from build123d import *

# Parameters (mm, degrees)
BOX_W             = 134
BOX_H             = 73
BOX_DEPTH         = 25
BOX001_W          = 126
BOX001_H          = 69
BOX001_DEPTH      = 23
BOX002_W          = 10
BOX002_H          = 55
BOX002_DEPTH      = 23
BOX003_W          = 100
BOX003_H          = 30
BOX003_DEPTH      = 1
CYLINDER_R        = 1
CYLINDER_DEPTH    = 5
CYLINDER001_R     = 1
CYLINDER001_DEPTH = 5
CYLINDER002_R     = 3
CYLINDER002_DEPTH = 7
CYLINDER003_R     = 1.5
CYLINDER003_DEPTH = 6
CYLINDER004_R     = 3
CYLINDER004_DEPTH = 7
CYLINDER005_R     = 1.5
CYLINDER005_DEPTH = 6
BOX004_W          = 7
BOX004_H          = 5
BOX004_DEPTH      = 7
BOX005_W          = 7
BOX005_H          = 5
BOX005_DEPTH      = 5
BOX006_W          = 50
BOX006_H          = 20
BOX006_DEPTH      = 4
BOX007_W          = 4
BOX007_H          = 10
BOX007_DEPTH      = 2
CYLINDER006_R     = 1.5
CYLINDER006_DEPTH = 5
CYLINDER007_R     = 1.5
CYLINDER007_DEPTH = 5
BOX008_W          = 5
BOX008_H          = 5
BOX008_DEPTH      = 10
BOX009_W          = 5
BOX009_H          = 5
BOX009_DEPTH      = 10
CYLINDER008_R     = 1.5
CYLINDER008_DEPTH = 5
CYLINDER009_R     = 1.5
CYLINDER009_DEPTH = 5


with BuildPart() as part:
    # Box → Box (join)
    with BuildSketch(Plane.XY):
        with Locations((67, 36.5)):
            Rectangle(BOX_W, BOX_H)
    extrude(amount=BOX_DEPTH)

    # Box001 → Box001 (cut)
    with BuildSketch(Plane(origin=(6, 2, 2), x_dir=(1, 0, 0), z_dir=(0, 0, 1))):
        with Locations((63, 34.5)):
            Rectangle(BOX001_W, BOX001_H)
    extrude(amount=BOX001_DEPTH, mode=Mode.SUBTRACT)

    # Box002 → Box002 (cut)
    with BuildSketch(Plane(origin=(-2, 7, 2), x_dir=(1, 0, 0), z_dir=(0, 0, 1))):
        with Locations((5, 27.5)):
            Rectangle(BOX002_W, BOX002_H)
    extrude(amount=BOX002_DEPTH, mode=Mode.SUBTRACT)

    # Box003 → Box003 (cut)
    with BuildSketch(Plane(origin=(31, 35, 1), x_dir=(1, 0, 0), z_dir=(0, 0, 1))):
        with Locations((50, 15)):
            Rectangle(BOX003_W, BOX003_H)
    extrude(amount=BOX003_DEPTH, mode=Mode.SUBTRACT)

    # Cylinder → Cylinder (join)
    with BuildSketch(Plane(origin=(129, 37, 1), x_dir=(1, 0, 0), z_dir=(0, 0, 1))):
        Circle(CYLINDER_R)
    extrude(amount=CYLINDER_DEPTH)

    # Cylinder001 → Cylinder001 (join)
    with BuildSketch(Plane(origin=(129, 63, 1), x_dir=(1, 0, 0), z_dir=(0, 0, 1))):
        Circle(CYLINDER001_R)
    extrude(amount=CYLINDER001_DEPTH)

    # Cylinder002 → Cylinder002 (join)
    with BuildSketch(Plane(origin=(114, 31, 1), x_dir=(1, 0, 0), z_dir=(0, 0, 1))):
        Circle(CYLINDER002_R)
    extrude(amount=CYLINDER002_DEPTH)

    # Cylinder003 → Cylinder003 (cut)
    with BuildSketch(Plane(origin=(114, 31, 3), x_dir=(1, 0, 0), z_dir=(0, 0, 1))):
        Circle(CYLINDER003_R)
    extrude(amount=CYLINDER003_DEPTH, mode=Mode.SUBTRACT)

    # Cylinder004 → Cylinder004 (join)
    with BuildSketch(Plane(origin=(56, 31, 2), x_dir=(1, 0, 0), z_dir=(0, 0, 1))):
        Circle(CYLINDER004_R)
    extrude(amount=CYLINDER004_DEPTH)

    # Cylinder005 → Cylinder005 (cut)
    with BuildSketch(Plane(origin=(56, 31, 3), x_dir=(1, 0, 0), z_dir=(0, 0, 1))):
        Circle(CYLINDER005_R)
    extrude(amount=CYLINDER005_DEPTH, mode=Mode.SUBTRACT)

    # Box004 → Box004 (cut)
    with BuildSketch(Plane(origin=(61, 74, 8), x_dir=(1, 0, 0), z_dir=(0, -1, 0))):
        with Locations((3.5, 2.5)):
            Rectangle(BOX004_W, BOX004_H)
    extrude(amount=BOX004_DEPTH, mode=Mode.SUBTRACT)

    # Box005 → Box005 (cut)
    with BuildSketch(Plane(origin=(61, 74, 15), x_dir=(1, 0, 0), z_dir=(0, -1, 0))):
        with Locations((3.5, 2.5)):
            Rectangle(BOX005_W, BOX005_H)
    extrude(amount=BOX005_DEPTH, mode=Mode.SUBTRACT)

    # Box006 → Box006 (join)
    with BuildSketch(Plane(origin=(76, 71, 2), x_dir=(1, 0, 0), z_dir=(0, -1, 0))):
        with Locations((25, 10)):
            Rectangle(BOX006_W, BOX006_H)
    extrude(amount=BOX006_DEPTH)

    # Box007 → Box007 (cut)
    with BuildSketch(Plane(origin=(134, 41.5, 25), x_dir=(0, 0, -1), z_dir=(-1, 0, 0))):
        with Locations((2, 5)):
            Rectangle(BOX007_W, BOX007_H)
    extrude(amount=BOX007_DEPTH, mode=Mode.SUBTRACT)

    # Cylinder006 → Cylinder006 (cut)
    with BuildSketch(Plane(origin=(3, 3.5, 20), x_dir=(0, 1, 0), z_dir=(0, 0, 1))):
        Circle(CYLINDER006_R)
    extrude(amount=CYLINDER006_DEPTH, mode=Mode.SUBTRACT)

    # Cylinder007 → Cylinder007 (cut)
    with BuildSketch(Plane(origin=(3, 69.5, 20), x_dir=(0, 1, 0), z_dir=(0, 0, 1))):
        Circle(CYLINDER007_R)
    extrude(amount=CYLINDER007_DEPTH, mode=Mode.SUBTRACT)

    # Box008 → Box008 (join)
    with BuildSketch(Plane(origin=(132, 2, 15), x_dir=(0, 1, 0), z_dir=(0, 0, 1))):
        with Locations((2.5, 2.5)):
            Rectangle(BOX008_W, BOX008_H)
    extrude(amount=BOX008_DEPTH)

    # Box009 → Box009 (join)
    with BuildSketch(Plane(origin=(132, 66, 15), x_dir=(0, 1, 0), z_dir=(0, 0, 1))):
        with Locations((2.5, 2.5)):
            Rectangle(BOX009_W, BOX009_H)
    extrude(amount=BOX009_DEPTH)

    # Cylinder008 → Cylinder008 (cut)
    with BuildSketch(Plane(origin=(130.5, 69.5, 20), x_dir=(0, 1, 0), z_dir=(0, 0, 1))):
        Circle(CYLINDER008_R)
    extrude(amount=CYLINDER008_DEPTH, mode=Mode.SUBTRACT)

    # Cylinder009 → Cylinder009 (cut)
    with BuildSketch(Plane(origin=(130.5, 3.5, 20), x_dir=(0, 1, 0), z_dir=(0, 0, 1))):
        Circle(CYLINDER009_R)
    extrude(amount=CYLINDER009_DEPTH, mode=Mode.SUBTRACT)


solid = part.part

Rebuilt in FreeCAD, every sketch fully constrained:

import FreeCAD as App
import Part
import Sketcher
Q = App.Units.Quantity


def add_polygon(sketch, points):
    """Adds a closed chain of lines whose ends are joined by coincident constraints."""
    first, n = sketch.GeometryCount, len(points)
    for a, b in zip(points, points[1:] + points[:1]):
        sketch.addGeometry(Part.LineSegment(App.Vector(*a, 0), App.Vector(*b, 0)), False)
    for i in range(n):
        sketch.addConstraint(Sketcher.Constraint("Coincident", first + i, 2, first + (i + 1) % n, 1))

doc = App.newDocument("Part")
body = doc.addObject("PartDesign::Body", "Body")

sketch1 = body.newObject("Sketcher::SketchObject", "Sketch")
sketch1.AttachmentSupport = (doc.getObject("XY_Plane"), [""])
sketch1.MapMode = "FlatFace"
add_polygon(sketch1, [(0, 73), (0, 0), (134, 0), (134, 73)])
sketch1.addConstraint(Sketcher.Constraint("Vertical", 0))
sketch1.addConstraint(Sketcher.Constraint("Horizontal", 1))
sketch1.addConstraint(Sketcher.Constraint("Vertical", 2))
sketch1.addConstraint(Sketcher.Constraint("Horizontal", 3))
sketch1.addConstraint(Sketcher.Constraint("Coincident", 0, 2, -1, 1))
sketch1.addConstraint(Sketcher.Constraint("DistanceX", 1, 1, 1, 2, Q("134 mm")))
sketch1.addConstraint(Sketcher.Constraint("DistanceY", 0, 2, 0, 1, Q("73 mm")))
pad1 = body.newObject("PartDesign::Pad", "Pad")
pad1.Profile = sketch1
pad1.Length = 25

sketch2 = body.newObject("Sketcher::SketchObject", "Sketch001")
sketch2.AttachmentSupport = (doc.getObject("XY_Plane"), [""])
sketch2.MapMode = "FlatFace"
sketch2.AttachmentOffset = App.Placement(App.Vector(0, 0, 2), App.Rotation())
add_polygon(sketch2, [(6, 71), (6, 2), (132, 2), (132, 71)])
sketch2.addConstraint(Sketcher.Constraint("Vertical", 0))
sketch2.addConstraint(Sketcher.Constraint("Horizontal", 1))
sketch2.addConstraint(Sketcher.Constraint("Vertical", 2))
sketch2.addConstraint(Sketcher.Constraint("Horizontal", 3))
sketch2.addConstraint(Sketcher.Constraint("DistanceX", 1, 1, 1, 2, Q("126 mm")))
sketch2.addConstraint(Sketcher.Constraint("DistanceY", 0, 2, 0, 1, Q("69 mm")))
sketch2.addConstraint(Sketcher.Constraint("DistanceX", -1, 1, 0, 2, Q("6 mm")))
sketch2.addConstraint(Sketcher.Constraint("DistanceY", -1, 1, 0, 2, Q("2 mm")))
pocket1 = body.newObject("PartDesign::Pocket", "Pocket")
pocket1.Profile = sketch2
pocket1.Length = 23
pocket1.Reversed = True

sketch3 = body.newObject("Sketcher::SketchObject", "Sketch002")
sketch3.AttachmentSupport = (doc.getObject("XY_Plane"), [""])
sketch3.MapMode = "FlatFace"
sketch3.AttachmentOffset = App.Placement(App.Vector(0, 0, 2), App.Rotation())
add_polygon(sketch3, [(-2, 62), (-2, 7), (8, 7), (8, 62)])
sketch3.addConstraint(Sketcher.Constraint("Vertical", 0))
sketch3.addConstraint(Sketcher.Constraint("Horizontal", 1))
sketch3.addConstraint(Sketcher.Constraint("Vertical", 2))
sketch3.addConstraint(Sketcher.Constraint("Horizontal", 3))
sketch3.addConstraint(Sketcher.Constraint("DistanceX", 1, 1, 1, 2, Q("10 mm")))
sketch3.addConstraint(Sketcher.Constraint("DistanceY", 0, 2, 0, 1, Q("55 mm")))
sketch3.addConstraint(Sketcher.Constraint("DistanceX", 0, 2, -1, 1, Q("2 mm")))
sketch3.addConstraint(Sketcher.Constraint("DistanceY", -1, 1, 0, 2, Q("7 mm")))
pocket2 = body.newObject("PartDesign::Pocket", "Pocket001")
pocket2.Profile = sketch3
pocket2.Length = 23
pocket2.Reversed = True

sketch4 = body.newObject("Sketcher::SketchObject", "Sketch003")
sketch4.AttachmentSupport = (doc.getObject("XY_Plane"), [""])
sketch4.MapMode = "FlatFace"
sketch4.AttachmentOffset = App.Placement(App.Vector(0, 0, 1), App.Rotation())
add_polygon(sketch4, [(31, 65), (31, 35), (131, 35), (131, 65)])
sketch4.addConstraint(Sketcher.Constraint("Vertical", 0))
sketch4.addConstraint(Sketcher.Constraint("Horizontal", 1))
sketch4.addConstraint(Sketcher.Constraint("Vertical", 2))
sketch4.addConstraint(Sketcher.Constraint("Horizontal", 3))
sketch4.addConstraint(Sketcher.Constraint("DistanceX", 1, 1, 1, 2, Q("100 mm")))
sketch4.addConstraint(Sketcher.Constraint("DistanceY", 0, 2, 0, 1, Q("30 mm")))
sketch4.addConstraint(Sketcher.Constraint("DistanceX", -1, 1, 0, 2, Q("31 mm")))
sketch4.addConstraint(Sketcher.Constraint("DistanceY", -1, 1, 0, 2, Q("35 mm")))
pocket3 = body.newObject("PartDesign::Pocket", "Pocket002")
pocket3.Profile = sketch4
pocket3.Length = 1
pocket3.Reversed = True

sketch5 = body.newObject("Sketcher::SketchObject", "Sketch004")
sketch5.AttachmentSupport = (doc.getObject("XY_Plane"), [""])
sketch5.MapMode = "FlatFace"
sketch5.AttachmentOffset = App.Placement(App.Vector(0, 0, 1), App.Rotation())
sketch5.addGeometry(Part.Circle(App.Vector(129, 37, 0), App.Vector(0, 0, 1), 1), False)
sketch5.addConstraint(Sketcher.Constraint("Diameter", 0, Q("2 mm")))
sketch5.addConstraint(Sketcher.Constraint("DistanceX", -1, 1, 0, 3, Q("129 mm")))
sketch5.addConstraint(Sketcher.Constraint("DistanceY", -1, 1, 0, 3, Q("37 mm")))
pad2 = body.newObject("PartDesign::Pad", "Pad001")
pad2.Profile = sketch5
pad2.Length = 5

sketch6 = body.newObject("Sketcher::SketchObject", "Sketch005")
sketch6.AttachmentSupport = (doc.getObject("XY_Plane"), [""])
sketch6.MapMode = "FlatFace"
sketch6.AttachmentOffset = App.Placement(App.Vector(0, 0, 1), App.Rotation())
sketch6.addGeometry(Part.Circle(App.Vector(129, 63, 0), App.Vector(0, 0, 1), 1), False)
sketch6.addConstraint(Sketcher.Constraint("Diameter", 0, Q("2 mm")))
sketch6.addConstraint(Sketcher.Constraint("DistanceX", -1, 1, 0, 3, Q("129 mm")))
sketch6.addConstraint(Sketcher.Constraint("DistanceY", -1, 1, 0, 3, Q("63 mm")))
pad3 = body.newObject("PartDesign::Pad", "Pad002")
pad3.Profile = sketch6
pad3.Length = 5

sketch7 = body.newObject("Sketcher::SketchObject", "Sketch006")
sketch7.AttachmentSupport = (doc.getObject("XY_Plane"), [""])
sketch7.MapMode = "FlatFace"
sketch7.AttachmentOffset = App.Placement(App.Vector(0, 0, 1), App.Rotation())
sketch7.addGeometry(Part.Circle(App.Vector(114, 31, 0), App.Vector(0, 0, 1), 3), False)
sketch7.addConstraint(Sketcher.Constraint("Diameter", 0, Q("6 mm")))
sketch7.addConstraint(Sketcher.Constraint("DistanceX", -1, 1, 0, 3, Q("114 mm")))
sketch7.addConstraint(Sketcher.Constraint("DistanceY", -1, 1, 0, 3, Q("31 mm")))
pad4 = body.newObject("PartDesign::Pad", "Pad003")
pad4.Profile = sketch7
pad4.Length = 7

sketch8 = body.newObject("Sketcher::SketchObject", "Sketch007")
sketch8.AttachmentSupport = (doc.getObject("XY_Plane"), [""])
sketch8.MapMode = "FlatFace"
sketch8.AttachmentOffset = App.Placement(App.Vector(0, 0, 3), App.Rotation())
sketch8.addGeometry(Part.Circle(App.Vector(114, 31, 0), App.Vector(0, 0, 1), 1.5), False)
sketch8.addConstraint(Sketcher.Constraint("Diameter", 0, Q("3 mm")))
sketch8.addConstraint(Sketcher.Constraint("DistanceX", -1, 1, 0, 3, Q("114 mm")))
sketch8.addConstraint(Sketcher.Constraint("DistanceY", -1, 1, 0, 3, Q("31 mm")))
pocket4 = body.newObject("PartDesign::Pocket", "Pocket003")
pocket4.Profile = sketch8
pocket4.Length = 6
pocket4.Reversed = True

sketch9 = body.newObject("Sketcher::SketchObject", "Sketch008")
sketch9.AttachmentSupport = (doc.getObject("XY_Plane"), [""])
sketch9.MapMode = "FlatFace"
sketch9.AttachmentOffset = App.Placement(App.Vector(0, 0, 2), App.Rotation())
sketch9.addGeometry(Part.Circle(App.Vector(56, 31, 0), App.Vector(0, 0, 1), 3), False)
sketch9.addConstraint(Sketcher.Constraint("Diameter", 0, Q("6 mm")))
sketch9.addConstraint(Sketcher.Constraint("DistanceX", -1, 1, 0, 3, Q("56 mm")))
sketch9.addConstraint(Sketcher.Constraint("DistanceY", -1, 1, 0, 3, Q("31 mm")))
pad5 = body.newObject("PartDesign::Pad", "Pad004")
pad5.Profile = sketch9
pad5.Length = 7

sketch10 = body.newObject("Sketcher::SketchObject", "Sketch009")
sketch10.AttachmentSupport = (doc.getObject("XY_Plane"), [""])
sketch10.MapMode = "FlatFace"
sketch10.AttachmentOffset = App.Placement(App.Vector(0, 0, 3), App.Rotation())
sketch10.addGeometry(Part.Circle(App.Vector(56, 31, 0), App.Vector(0, 0, 1), 1.5), False)
sketch10.addConstraint(Sketcher.Constraint("Diameter", 0, Q("3 mm")))
sketch10.addConstraint(Sketcher.Constraint("DistanceX", -1, 1, 0, 3, Q("56 mm")))
sketch10.addConstraint(Sketcher.Constraint("DistanceY", -1, 1, 0, 3, Q("31 mm")))
pocket5 = body.newObject("PartDesign::Pocket", "Pocket004")
pocket5.Profile = sketch10
pocket5.Length = 6
pocket5.Reversed = True

sketch11 = body.newObject("Sketcher::SketchObject", "Sketch010")
sketch11.AttachmentSupport = (doc.getObject("XZ_Plane"), [""])
sketch11.MapMode = "FlatFace"
sketch11.AttachmentOffset = App.Placement(App.Vector(0, 0, -74), App.Rotation())
add_polygon(sketch11, [(61, 13), (61, 8), (68, 8), (68, 13)])
sketch11.addConstraint(Sketcher.Constraint("Vertical", 0))
sketch11.addConstraint(Sketcher.Constraint("Horizontal", 1))
sketch11.addConstraint(Sketcher.Constraint("Vertical", 2))
sketch11.addConstraint(Sketcher.Constraint("Horizontal", 3))
sketch11.addConstraint(Sketcher.Constraint("DistanceX", 1, 1, 1, 2, Q("7 mm")))
sketch11.addConstraint(Sketcher.Constraint("DistanceY", 0, 2, 0, 1, Q("5 mm")))
sketch11.addConstraint(Sketcher.Constraint("DistanceX", -1, 1, 0, 2, Q("61 mm")))
sketch11.addConstraint(Sketcher.Constraint("DistanceY", -1, 1, 0, 2, Q("8 mm")))
pocket6 = body.newObject("PartDesign::Pocket", "Pocket005")
pocket6.Profile = sketch11
pocket6.Length = 7
pocket6.Reversed = True

sketch12 = body.newObject("Sketcher::SketchObject", "Sketch011")
sketch12.AttachmentSupport = (doc.getObject("XZ_Plane"), [""])
sketch12.MapMode = "FlatFace"
sketch12.AttachmentOffset = App.Placement(App.Vector(0, 0, -74), App.Rotation())
add_polygon(sketch12, [(61, 20), (61, 15), (68, 15), (68, 20)])
sketch12.addConstraint(Sketcher.Constraint("Vertical", 0))
sketch12.addConstraint(Sketcher.Constraint("Horizontal", 1))
sketch12.addConstraint(Sketcher.Constraint("Vertical", 2))
sketch12.addConstraint(Sketcher.Constraint("Horizontal", 3))
sketch12.addConstraint(Sketcher.Constraint("DistanceX", 1, 1, 1, 2, Q("7 mm")))
sketch12.addConstraint(Sketcher.Constraint("DistanceY", 0, 2, 0, 1, Q("5 mm")))
sketch12.addConstraint(Sketcher.Constraint("DistanceX", -1, 1, 0, 2, Q("61 mm")))
sketch12.addConstraint(Sketcher.Constraint("DistanceY", -1, 1, 0, 2, Q("15 mm")))
pocket7 = body.newObject("PartDesign::Pocket", "Pocket006")
pocket7.Profile = sketch12
pocket7.Length = 5
pocket7.Reversed = True

sketch13 = body.newObject("Sketcher::SketchObject", "Sketch012")
sketch13.AttachmentSupport = (doc.getObject("XZ_Plane"), [""])
sketch13.MapMode = "FlatFace"
sketch13.AttachmentOffset = App.Placement(App.Vector(0, 0, -71), App.Rotation())
add_polygon(sketch13, [(76, 22), (76, 2), (126, 2), (126, 22)])
sketch13.addConstraint(Sketcher.Constraint("Vertical", 0))
sketch13.addConstraint(Sketcher.Constraint("Horizontal", 1))
sketch13.addConstraint(Sketcher.Constraint("Vertical", 2))
sketch13.addConstraint(Sketcher.Constraint("Horizontal", 3))
sketch13.addConstraint(Sketcher.Constraint("DistanceX", 1, 1, 1, 2, Q("50 mm")))
sketch13.addConstraint(Sketcher.Constraint("DistanceY", 0, 2, 0, 1, Q("20 mm")))
sketch13.addConstraint(Sketcher.Constraint("DistanceX", -1, 1, 0, 2, Q("76 mm")))
sketch13.addConstraint(Sketcher.Constraint("DistanceY", -1, 1, 0, 2, Q("2 mm")))
pad6 = body.newObject("PartDesign::Pad", "Pad005")
pad6.Profile = sketch13
pad6.Length = 4

sketch14 = body.newObject("Sketcher::SketchObject", "Sketch013")
sketch14.AttachmentSupport = (doc.getObject("YZ_Plane"), [""])
sketch14.MapMode = "FlatFace"
sketch14.AttachmentOffset = App.Placement(App.Vector(0, 0, 134), App.Rotation())
add_polygon(sketch14, [(31.5, 25), (41.5, 25), (41.5, 21), (31.5, 21)])
sketch14.addConstraint(Sketcher.Constraint("Horizontal", 0))
sketch14.addConstraint(Sketcher.Constraint("Vertical", 1))
sketch14.addConstraint(Sketcher.Constraint("Horizontal", 2))
sketch14.addConstraint(Sketcher.Constraint("Vertical", 3))
sketch14.addConstraint(Sketcher.Constraint("DistanceX", 0, 1, 0, 2, Q("10 mm")))
sketch14.addConstraint(Sketcher.Constraint("DistanceY", 1, 2, 1, 1, Q("4 mm")))
sketch14.addConstraint(Sketcher.Constraint("DistanceY", -1, 1, 0, 2, Q("25 mm")))
sketch14.addConstraint(Sketcher.Constraint("DistanceX", -1, 1, 0, 2, Q("41.5 mm")))
pocket8 = body.newObject("PartDesign::Pocket", "Pocket007")
pocket8.Profile = sketch14
pocket8.Length = 2

sketch15 = body.newObject("Sketcher::SketchObject", "Sketch014")
sketch15.AttachmentSupport = (doc.getObject("XY_Plane"), [""])
sketch15.MapMode = "FlatFace"
sketch15.AttachmentOffset = App.Placement(App.Vector(0, 0, 20), App.Rotation())
sketch15.addGeometry(Part.Circle(App.Vector(3, 3.5, 0), App.Vector(0, 0, 1), 1.5), False)
sketch15.addConstraint(Sketcher.Constraint("Diameter", 0, Q("3 mm")))
sketch15.addConstraint(Sketcher.Constraint("DistanceX", -1, 1, 0, 3, Q("3 mm")))
sketch15.addConstraint(Sketcher.Constraint("DistanceY", -1, 1, 0, 3, Q("3.5 mm")))
pocket9 = body.newObject("PartDesign::Pocket", "Pocket008")
pocket9.Profile = sketch15
pocket9.Length = 5
pocket9.Reversed = True

sketch16 = body.newObject("Sketcher::SketchObject", "Sketch015")
sketch16.AttachmentSupport = (doc.getObject("XY_Plane"), [""])
sketch16.MapMode = "FlatFace"
sketch16.AttachmentOffset = App.Placement(App.Vector(0, 0, 20), App.Rotation())
sketch16.addGeometry(Part.Circle(App.Vector(3, 69.5, 0), App.Vector(0, 0, 1), 1.5), False)
sketch16.addConstraint(Sketcher.Constraint("Diameter", 0, Q("3 mm")))
sketch16.addConstraint(Sketcher.Constraint("DistanceX", -1, 1, 0, 3, Q("3 mm")))
sketch16.addConstraint(Sketcher.Constraint("DistanceY", -1, 1, 0, 3, Q("69.5 mm")))
pocket10 = body.newObject("PartDesign::Pocket", "Pocket009")
pocket10.Profile = sketch16
pocket10.Length = 5
pocket10.Reversed = True

sketch17 = body.newObject("Sketcher::SketchObject", "Sketch016")
sketch17.AttachmentSupport = (doc.getObject("XY_Plane"), [""])
sketch17.MapMode = "FlatFace"
sketch17.AttachmentOffset = App.Placement(App.Vector(0, 0, 15), App.Rotation())
add_polygon(sketch17, [(127, 2), (132, 2), (132, 7), (127, 7)])
sketch17.addConstraint(Sketcher.Constraint("Horizontal", 0))
sketch17.addConstraint(Sketcher.Constraint("Vertical", 1))
sketch17.addConstraint(Sketcher.Constraint("Horizontal", 2))
sketch17.addConstraint(Sketcher.Constraint("Vertical", 3))
sketch17.addConstraint(Sketcher.Constraint("Equal", 2, 1))
sketch17.addConstraint(Sketcher.Constraint("DistanceX", 0, 1, 0, 2, Q("5 mm")))
sketch17.addConstraint(Sketcher.Constraint("DistanceX", -1, 1, 0, 2, Q("132 mm")))
sketch17.addConstraint(Sketcher.Constraint("DistanceY", -1, 1, 0, 2, Q("2 mm")))
pad7 = body.newObject("PartDesign::Pad", "Pad006")
pad7.Profile = sketch17
pad7.Length = 10

sketch18 = body.newObject("Sketcher::SketchObject", "Sketch017")
sketch18.AttachmentSupport = (doc.getObject("XY_Plane"), [""])
sketch18.MapMode = "FlatFace"
sketch18.AttachmentOffset = App.Placement(App.Vector(0, 0, 15), App.Rotation())
add_polygon(sketch18, [(127, 66), (132, 66), (132, 71), (127, 71)])
sketch18.addConstraint(Sketcher.Constraint("Horizontal", 0))
sketch18.addConstraint(Sketcher.Constraint("Vertical", 1))
sketch18.addConstraint(Sketcher.Constraint("Horizontal", 2))
sketch18.addConstraint(Sketcher.Constraint("Vertical", 3))
sketch18.addConstraint(Sketcher.Constraint("Equal", 2, 1))
sketch18.addConstraint(Sketcher.Constraint("DistanceX", 0, 1, 0, 2, Q("5 mm")))
sketch18.addConstraint(Sketcher.Constraint("DistanceX", -1, 1, 0, 2, Q("132 mm")))
sketch18.addConstraint(Sketcher.Constraint("DistanceY", -1, 1, 0, 2, Q("66 mm")))
pad8 = body.newObject("PartDesign::Pad", "Pad007")
pad8.Profile = sketch18
pad8.Length = 10

sketch19 = body.newObject("Sketcher::SketchObject", "Sketch018")
sketch19.AttachmentSupport = (doc.getObject("XY_Plane"), [""])
sketch19.MapMode = "FlatFace"
sketch19.AttachmentOffset = App.Placement(App.Vector(0, 0, 20), App.Rotation())
sketch19.addGeometry(Part.Circle(App.Vector(130.5, 69.5, 0), App.Vector(0, 0, 1), 1.5), False)
sketch19.addConstraint(Sketcher.Constraint("Diameter", 0, Q("3 mm")))
sketch19.addConstraint(Sketcher.Constraint("DistanceX", -1, 1, 0, 3, Q("130.5 mm")))
sketch19.addConstraint(Sketcher.Constraint("DistanceY", -1, 1, 0, 3, Q("69.5 mm")))
pocket11 = body.newObject("PartDesign::Pocket", "Pocket010")
pocket11.Profile = sketch19
pocket11.Length = 5
pocket11.Reversed = True

sketch20 = body.newObject("Sketcher::SketchObject", "Sketch019")
sketch20.AttachmentSupport = (doc.getObject("XY_Plane"), [""])
sketch20.MapMode = "FlatFace"
sketch20.AttachmentOffset = App.Placement(App.Vector(0, 0, 20), App.Rotation())
sketch20.addGeometry(Part.Circle(App.Vector(130.5, 3.5, 0), App.Vector(0, 0, 1), 1.5), False)
sketch20.addConstraint(Sketcher.Constraint("Diameter", 0, Q("3 mm")))
sketch20.addConstraint(Sketcher.Constraint("DistanceX", -1, 1, 0, 3, Q("130.5 mm")))
sketch20.addConstraint(Sketcher.Constraint("DistanceY", -1, 1, 0, 3, Q("3.5 mm")))
pocket12 = body.newObject("PartDesign::Pocket", "Pocket011")
pocket12.Profile = sketch20
pocket12.Length = 5
pocket12.Reversed = True

doc.recompute()
